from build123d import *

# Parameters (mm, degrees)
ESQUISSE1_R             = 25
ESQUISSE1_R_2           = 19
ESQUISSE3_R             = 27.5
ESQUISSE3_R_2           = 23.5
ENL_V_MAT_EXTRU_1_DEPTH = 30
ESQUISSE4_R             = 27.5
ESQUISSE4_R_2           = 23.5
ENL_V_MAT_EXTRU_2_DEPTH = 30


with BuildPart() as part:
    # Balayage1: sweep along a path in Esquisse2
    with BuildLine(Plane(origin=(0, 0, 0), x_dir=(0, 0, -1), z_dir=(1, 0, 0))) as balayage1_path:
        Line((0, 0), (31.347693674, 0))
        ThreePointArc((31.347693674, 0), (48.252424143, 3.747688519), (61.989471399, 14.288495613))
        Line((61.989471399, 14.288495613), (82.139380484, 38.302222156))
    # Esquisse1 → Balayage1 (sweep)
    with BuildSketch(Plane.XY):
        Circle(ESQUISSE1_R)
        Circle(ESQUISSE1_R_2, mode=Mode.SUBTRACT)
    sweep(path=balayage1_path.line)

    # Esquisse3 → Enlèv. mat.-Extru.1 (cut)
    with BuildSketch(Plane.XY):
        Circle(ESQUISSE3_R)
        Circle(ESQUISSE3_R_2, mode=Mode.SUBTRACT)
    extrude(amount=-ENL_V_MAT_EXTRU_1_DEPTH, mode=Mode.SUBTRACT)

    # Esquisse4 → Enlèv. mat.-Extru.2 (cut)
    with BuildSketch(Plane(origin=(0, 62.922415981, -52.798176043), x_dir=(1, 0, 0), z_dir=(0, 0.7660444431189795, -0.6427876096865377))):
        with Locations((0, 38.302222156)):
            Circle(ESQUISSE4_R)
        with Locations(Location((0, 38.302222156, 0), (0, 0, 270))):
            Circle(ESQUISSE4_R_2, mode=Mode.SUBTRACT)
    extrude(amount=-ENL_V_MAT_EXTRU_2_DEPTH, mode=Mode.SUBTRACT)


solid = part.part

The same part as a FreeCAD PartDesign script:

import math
import FreeCAD as App
import Part
import Sketcher
Q = App.Units.Quantity

doc = App.newDocument("Part")
body = doc.addObject("PartDesign::Body", "Body")

# Sketch on XY plane
sketch1 = doc.addObject("Sketcher::SketchObject", "Sketch")
body.addObject(sketch1)
sketch1.AttachmentSupport = (doc.XY_Plane, [""])
sketch1.MapMode = "FlatFace"
sketch1.addGeometry([
    Part.Circle(App.Vector(0, 0, 0), App.Vector(0, 0, 1), 25),
    Part.Circle(App.Vector(0, 0, 0), App.Vector(0, 0, 1), 19),
], False)
sketch1.addConstraint([
    Sketcher.Constraint("Coincident", 0, 3, -1, 1),
    Sketcher.Constraint("Coincident", 1, 3, -1, 1),
    Sketcher.Constraint("Diameter", 0, 50.0),
    Sketcher.Constraint("Diameter", 1, 38.0),
])

# Sketch on YZ plane
sketch2 = doc.addObject("Sketcher::SketchObject", "Sketch001")
body.addObject(sketch2)
sketch2.AttachmentSupport = (doc.YZ_Plane, [""])
sketch2.MapMode = "FlatFace"
sketch2.addGeometry([
    Part.LineSegment(App.Vector(0, 0, 0), App.Vector(0, -31.347694, 0)),
    Part.ArcOfCircle(Part.Circle(App.Vector(40, -31.347694, 0), App.Vector(0, 0, 1), 40), math.radians(-180), math.radians(-130)),
    Part.LineSegment(App.Vector(14.288496, -61.989471, 0), App.Vector(38.302222, -82.13938, 0)),
], False)
sketch2.addConstraint([
    Sketcher.Constraint("Tangent", 0, 2, 1, 1),
    Sketcher.Constraint("Tangent", 1, 2, 2, 1),
    Sketcher.Constraint("Vertical", 0),
    Sketcher.Constraint("Coincident", 0, 1, -1, 1),
    Sketcher.Constraint("Radius", 1, 40.0),
    Sketcher.Constraint("Angle", 2, Q("-40 deg")),
    Sketcher.Constraint("DistanceY", 0, 2, 0, 1, 31.347694),
    Sketcher.Constraint("DistanceY", 2, 2, -1, 1, 82.13938),
])
doc.recompute()

additivepipe = doc.addObject("PartDesign::AdditivePipe", "AdditivePipe")
body.addObject(additivepipe)
additivepipe.Profile = sketch1
additivepipe.Spine = (sketch2, ["Edge1", "Edge2", "Edge3"])

# Sketch on XY plane
sketch3 = doc.addObject("Sketcher::SketchObject", "Sketch002")
body.addObject(sketch3)
sketch3.AttachmentSupport = (doc.XY_Plane, [""])
sketch3.MapMode = "FlatFace"
sketch3.addGeometry([
    Part.Circle(App.Vector(0, 0, 0), App.Vector(0, 0, 1), 27.5),
    Part.Circle(App.Vector(0, 0, 0), App.Vector(0, 0, 1), 23.5),
], False)
sketch3.addConstraint([
    Sketcher.Constraint("Coincident", 0, 3, -1, 1),
    Sketcher.Constraint("Coincident", 1, 3, -1, 1),
    Sketcher.Constraint("Diameter", 0, 55.0),
    Sketcher.Constraint("Diameter", 1, 47.0),
])
pocket1 = doc.addObject("PartDesign::Pocket", "Pocket")
body.addObject(pocket1)
pocket1.Profile = sketch3
pocket1.Length = 30

# Sketch on an angled plane
sketch4 = doc.addObject("Sketcher::SketchObject", "Sketch003")
body.addObject(sketch4)
sketch4.Placement = App.Placement(App.Vector(0, 62.922416, -52.798176), App.Rotation(App.Vector(1, 0, 0), App.Vector(0, -0.64278761, -0.766044443), App.Vector(0, 0.766044443, -0.64278761), "ZXY"))
sketch4.addGeometry([
    Part.Circle(App.Vector(0, 38.302222, 0), App.Vector(0, 0, 1), 27.5),
    Part.Circle(App.Vector(0, 38.302222, 0), App.Vector(0, 0, 1), 23.5),
], False)
sketch4.addConstraint([
    Sketcher.Constraint("Coincident", 1, 3, 0, 3),
    Sketcher.Constraint("PointOnObject", 0, 3, -2),
    Sketcher.Constraint("Diameter", 0, 55.0),
    Sketcher.Constraint("Diameter", 1, 47.0),
    Sketcher.Constraint("DistanceY", -1, 1, 0, 3, 38.302222),
])
pocket2 = doc.addObject("PartDesign::Pocket", "Pocket001")
body.addObject(pocket2)
pocket2.Profile = sketch4
pocket2.Length = 30

doc.recompute()
